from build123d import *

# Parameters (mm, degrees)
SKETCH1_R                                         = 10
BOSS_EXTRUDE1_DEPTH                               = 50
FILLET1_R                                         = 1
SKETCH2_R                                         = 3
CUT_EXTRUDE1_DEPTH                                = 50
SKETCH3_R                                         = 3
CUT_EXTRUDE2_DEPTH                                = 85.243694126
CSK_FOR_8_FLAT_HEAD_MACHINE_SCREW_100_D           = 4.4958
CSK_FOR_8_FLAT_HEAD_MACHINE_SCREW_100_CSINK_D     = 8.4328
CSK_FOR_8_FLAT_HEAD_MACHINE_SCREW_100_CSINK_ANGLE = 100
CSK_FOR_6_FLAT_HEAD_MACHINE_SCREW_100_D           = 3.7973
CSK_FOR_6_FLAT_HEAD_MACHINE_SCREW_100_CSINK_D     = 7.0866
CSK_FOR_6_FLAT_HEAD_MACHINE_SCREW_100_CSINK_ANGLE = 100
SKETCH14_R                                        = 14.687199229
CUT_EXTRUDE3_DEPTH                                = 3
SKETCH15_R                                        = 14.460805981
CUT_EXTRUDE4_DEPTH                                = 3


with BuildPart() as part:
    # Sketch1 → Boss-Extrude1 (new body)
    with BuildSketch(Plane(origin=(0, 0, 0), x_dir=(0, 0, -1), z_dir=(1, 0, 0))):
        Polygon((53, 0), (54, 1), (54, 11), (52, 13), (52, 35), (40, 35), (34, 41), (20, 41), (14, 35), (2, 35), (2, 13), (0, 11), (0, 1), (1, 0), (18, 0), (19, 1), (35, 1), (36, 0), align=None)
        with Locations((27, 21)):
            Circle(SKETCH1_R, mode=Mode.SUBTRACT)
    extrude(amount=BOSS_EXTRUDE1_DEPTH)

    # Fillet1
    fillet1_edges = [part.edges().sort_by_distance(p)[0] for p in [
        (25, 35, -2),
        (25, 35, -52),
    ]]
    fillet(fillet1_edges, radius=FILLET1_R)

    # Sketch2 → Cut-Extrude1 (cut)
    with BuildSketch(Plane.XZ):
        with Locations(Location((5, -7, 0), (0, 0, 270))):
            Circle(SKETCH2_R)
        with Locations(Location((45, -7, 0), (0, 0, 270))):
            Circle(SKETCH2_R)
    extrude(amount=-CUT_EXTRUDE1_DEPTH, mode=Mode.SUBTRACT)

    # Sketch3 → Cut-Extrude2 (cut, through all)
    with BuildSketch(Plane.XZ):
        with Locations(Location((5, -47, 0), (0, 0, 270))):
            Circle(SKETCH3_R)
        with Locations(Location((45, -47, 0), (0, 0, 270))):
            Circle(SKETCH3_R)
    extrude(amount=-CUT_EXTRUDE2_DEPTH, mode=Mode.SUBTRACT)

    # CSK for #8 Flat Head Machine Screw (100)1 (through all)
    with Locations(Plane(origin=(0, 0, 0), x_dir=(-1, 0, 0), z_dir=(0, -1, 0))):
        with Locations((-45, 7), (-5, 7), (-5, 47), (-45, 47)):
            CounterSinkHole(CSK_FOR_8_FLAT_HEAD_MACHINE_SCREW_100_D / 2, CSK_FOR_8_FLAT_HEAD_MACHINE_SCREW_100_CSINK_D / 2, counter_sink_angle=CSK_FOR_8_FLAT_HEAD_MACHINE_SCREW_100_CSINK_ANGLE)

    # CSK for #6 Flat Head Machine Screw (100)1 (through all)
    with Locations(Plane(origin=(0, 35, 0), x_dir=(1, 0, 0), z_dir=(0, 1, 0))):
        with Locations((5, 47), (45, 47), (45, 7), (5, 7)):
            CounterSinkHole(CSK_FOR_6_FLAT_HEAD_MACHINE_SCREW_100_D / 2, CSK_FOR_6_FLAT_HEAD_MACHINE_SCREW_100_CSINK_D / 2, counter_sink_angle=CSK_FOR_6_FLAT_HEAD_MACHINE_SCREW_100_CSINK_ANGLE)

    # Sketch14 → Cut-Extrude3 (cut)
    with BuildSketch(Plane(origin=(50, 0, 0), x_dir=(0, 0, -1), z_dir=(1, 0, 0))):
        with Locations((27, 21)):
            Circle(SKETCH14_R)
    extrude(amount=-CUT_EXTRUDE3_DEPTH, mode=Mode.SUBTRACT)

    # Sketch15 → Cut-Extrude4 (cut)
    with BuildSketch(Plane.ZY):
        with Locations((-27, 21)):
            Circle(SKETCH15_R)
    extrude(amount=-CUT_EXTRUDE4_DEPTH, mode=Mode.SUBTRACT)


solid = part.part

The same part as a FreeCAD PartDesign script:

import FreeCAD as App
import Part
import Sketcher

V = App.Vector


def edges_at(feature, points):
    """Names of the edges that pass closest to the given points."""
    edges = feature.Shape.Edges
    near = lambda p: min(range(len(edges)), key=lambda i: edges[i].distToShape(Part.Vertex(*p))[0])
    return sorted({f"Edge{near(p) + 1}" for p in points})


def add_polygon(sketch, points):
    """Adds a closed chain of lines whose ends are joined by coincident constraints."""
    first, n = sketch.GeometryCount, len(points)
    for a, b in zip(points, points[1:] + points[:1]):
        sketch.addGeometry(Part.LineSegment(App.Vector(*a, 0), App.Vector(*b, 0)), False)
    for i in range(n):
        sketch.addConstraint(Sketcher.Constraint("Coincident", first + i, 2, first + (i + 1) % n, 1))

doc = App.newDocument("Part")
body = doc.addObject("PartDesign::Body", "Body")

sketch1 = doc.addObject("Sketcher::SketchObject", "Sketch")
body.addObject(sketch1)
sketch1.AttachmentSupport = (doc.YZ_Plane, [""])
sketch1.MapMode = "FlatFace"
add_polygon(sketch1, [(0, -53), (1, -54), (11, -54), (13, -52), (35, -52), (35, -40), (41, -34), (41, -20), (35, -14), (35, -2), (13, -2), (11, 0), (1, 0), (0, -1), (0, -18), (1, -19), (1, -35), (0, -36)])
sketch1.addGeometry(Part.Circle(V(21, -27, 0), V(0, 0, 1), 10), False)
sketch1.addConstraint(Sketcher.Constraint("Horizontal", 1))
sketch1.addConstraint(Sketcher.Constraint("Horizontal", 3))
sketch1.addConstraint(Sketcher.Constraint("Vertical", 4))
sketch1.addConstraint(Sketcher.Constraint("Vertical", 6))
sketch1.addConstraint(Sketcher.Constraint("Vertical", 8))
sketch1.addConstraint(Sketcher.Constraint("Horizontal", 9))
sketch1.addConstraint(Sketcher.Constraint("Horizontal", 11))
sketch1.addConstraint(Sketcher.Constraint("Vertical", 13))
sketch1.addConstraint(Sketcher.Constraint("Vertical", 15))
sketch1.addConstraint(Sketcher.Constraint("Vertical", 17))
sketch1.addConstraint(Sketcher.Constraint("PointOnObject", 10, 2, -1))
sketch1.addConstraint(Sketcher.Constraint("PointOnObject", 12, 2, -2))
sketch1.addConstraint(Sketcher.Constraint("PointOnObject", 16, 2, -2))
sketch1.addConstraint(Sketcher.Constraint("Perpendicular", 0, 2))
sketch1.addConstraint(Sketcher.Constraint("Parallel", 2, 5))
sketch1.addConstraint(Sketcher.Constraint("Perpendicular", 5, 7))
sketch1.addConstraint(Sketcher.Constraint("Parallel", 7, 10))
sketch1.addConstraint(Sketcher.Constraint("Perpendicular", 10, 12))
sketch1.addConstraint(Sketcher.Constraint("Perpendicular", 12, 14))
sketch1.addConstraint(Sketcher.Constraint("Perpendicular", 14, 16))
sketch1.addConstraint(Sketcher.Constraint("Vertical", 4, 2, 7, 2))
sketch1.addConstraint(Sketcher.Constraint("Vertical", 2, 2, 9, 2))
sketch1.addConstraint(Sketcher.Constraint("Vertical", 1, 2, 10, 2))
sketch1.addConstraint(Sketcher.Constraint("Vertical", 0, 2, 11, 2))
sketch1.addConstraint(Sketcher.Constraint("Vertical", 11, 2, 14, 2))
sketch1.addConstraint(Sketcher.Constraint("Equal", 4, 8))
sketch1.addConstraint(Sketcher.Constraint("Equal", 13, 17))
sketch1.addConstraint(Sketcher.Constraint("Equal", 5, 7))
sketch1.addConstraint(Sketcher.Constraint("Diameter", 18, 20.0))
sketch1.addConstraint(Sketcher.Constraint("DistanceX", 1, 1, 1, 2, 10.0))
sketch1.addConstraint(Sketcher.Constraint("DistanceX", 3, 1, 3, 2, 22.0))
sketch1.addConstraint(Sketcher.Constraint("DistanceY", 4, 1, 4, 2, 12.0))
sketch1.addConstraint(Sketcher.Constraint("DistanceY", 6, 1, 6, 2, 14.0))
sketch1.addConstraint(Sketcher.Constraint("DistanceY", 13, 2, 13, 1, 17.0))
sketch1.addConstraint(Sketcher.Constraint("DistanceY", 15, 2, 15, 1, 16.0))
sketch1.addConstraint(Sketcher.Constraint("DistanceX", -1, 1, 18, 3, 21.0))
sketch1.addConstraint(Sketcher.Constraint("DistanceY", 18, 3, -1, 1, 27.0))
sketch1.addConstraint(Sketcher.Constraint("DistanceX", -1, 1, 0, 2, 1.0))
sketch1.addConstraint(Sketcher.Constraint("DistanceX", -1, 1, 2, 2, 13.0))
pad1 = doc.addObject("PartDesign::Pad", "Pad")
body.addObject(pad1)
pad1.Profile = sketch1
pad1.Length = 50
doc.recompute()

fillet = doc.addObject("PartDesign::Fillet", "Fillet")
body.addObject(fillet)
fillet.Base = (pad1, edges_at(pad1, [(25, 35, -2), (25, 35, -52)]))
fillet.Radius = 1

sketch2 = doc.addObject("Sketcher::SketchObject", "Sketch001")
body.addObject(sketch2)
sketch2.AttachmentSupport = (doc.XZ_Plane, [""])
sketch2.MapMode = "FlatFace"
sketch2.addGeometry(Part.Circle(V(5, -7, 0), V(0, 0, 1), 3), False)
sketch2.addGeometry(Part.Circle(V(45, -7, 0), V(0, 0, 1), 3), False)
sketch2.addConstraint(Sketcher.Constraint("Equal", 0, 1))
sketch2.addConstraint(Sketcher.Constraint("Horizontal", 0, 3, 1, 3))
sketch2.addConstraint(Sketcher.Constraint("Diameter", 0, 6.0))
sketch2.addConstraint(Sketcher.Constraint("DistanceX", -1, 1, 0, 3, 5.0))
sketch2.addConstraint(Sketcher.Constraint("DistanceY", 0, 3, -1, 1, 7.0))
sketch2.addConstraint(Sketcher.Constraint("DistanceX", -1, 1, 1, 3, 45.0))
pocket1 = doc.addObject("PartDesign::Pocket", "Pocket")
body.addObject(pocket1)
pocket1.Profile = sketch2
pocket1.Length = 50

sketch3 = doc.addObject("Sketcher::SketchObject", "Sketch002")
body.addObject(sketch3)
sketch3.AttachmentSupport = (doc.XZ_Plane, [""])
sketch3.MapMode = "FlatFace"
sketch3.addGeometry(Part.Circle(V(5, -47, 0), V(0, 0, 1), 3), False)
sketch3.addGeometry(Part.Circle(V(45, -47, 0), V(0, 0, 1), 3), False)
sketch3.addConstraint(Sketcher.Constraint("Equal", 0, 1))
sketch3.addConstraint(Sketcher.Constraint("Horizontal", 0, 3, 1, 3))
sketch3.addConstraint(Sketcher.Constraint("Diameter", 0, 6.0))
sketch3.addConstraint(Sketcher.Constraint("DistanceX", -1, 1, 0, 3, 5.0))
sketch3.addConstraint(Sketcher.Constraint("DistanceY", 0, 3, -1, 1, 47.0))
sketch3.addConstraint(Sketcher.Constraint("DistanceX", -1, 1, 1, 3, 45.0))
pocket2 = doc.addObject("PartDesign::Pocket", "Pocket001")
body.addObject(pocket2)
pocket2.Profile = sketch3
pocket2.Type = "ThroughAll"

sketch4 = doc.addObject("Sketcher::SketchObject", "Sketch003")
body.addObject(sketch4)
sketch4.AttachmentSupport = (doc.XZ_Plane, [""])
sketch4.MapMode = "FlatFace"
sketch4.addGeometry(Part.Circle(V(45, -7, 0), V(0, 0, 1), 2.2479), False)
sketch4.addGeometry(Part.Circle(V(5, -7, 0), V(0, 0, 1), 2.2479), False)
sketch4.addGeometry(Part.Circle(V(5, -47, 0), V(0, 0, 1), 2.2479), False)
sketch4.addGeometry(Part.Circle(V(45, -47, 0), V(0, 0, 1), 2.2479), False)
sketch4.addConstraint(Sketcher.Constraint("Equal", 0, 1))
sketch4.addConstraint(Sketcher.Constraint("Equal", 1, 2))
sketch4.addConstraint(Sketcher.Constraint("Equal", 2, 3))
sketch4.addConstraint(Sketcher.Constraint("Horizontal", 0, 3, 1, 3))
sketch4.addConstraint(Sketcher.Constraint("Horizontal", 2, 3, 3, 3))
sketch4.addConstraint(Sketcher.Constraint("Vertical", 1, 3, 2, 3))
sketch4.addConstraint(Sketcher.Constraint("Vertical", 0, 3, 3, 3))
sketch4.addConstraint(Sketcher.Constraint("DistanceX", -1, 1, 0, 3, 45.0))
sketch4.addConstraint(Sketcher.Constraint("DistanceY", 0, 3, -1, 1, 7.0))
sketch4.addConstraint(Sketcher.Constraint("DistanceX", -1, 1, 1, 3, 5.0))
sketch4.addConstraint(Sketcher.Constraint("DistanceY", 2, 3, -1, 1, 47.0))
sketch4.addConstraint(Sketcher.Constraint("Diameter", 0, 4.4958))
doc.recompute()
hole = doc.addObject("PartDesign::Hole", "Hole")
body.addObject(hole)
hole.Profile = sketch4
hole.ThreadType = "None"
hole.Diameter = 4.4958
hole.DepthType = "ThroughAll"
hole.HoleCutType = "Countersink"
hole.HoleCutDiameter = 8.4328
hole.HoleCutCountersinkAngle = 100

sketch5 = doc.addObject("Sketcher::SketchObject", "Sketch004")
body.addObject(sketch5)
sketch5.AttachmentSupport = (doc.XZ_Plane, [""])
sketch5.MapMode = "FlatFace"
sketch5.AttachmentOffset = App.Placement(V(0, 0, -35), App.Rotation())
sketch5.addGeometry(Part.Circle(V(5, -47, 0), V(0, 0, 1), 1.89865), False)
sketch5.addGeometry(Part.Circle(V(45, -47, 0), V(0, 0, 1), 1.89865), False)
sketch5.addGeometry(Part.Circle(V(45, -7, 0), V(0, 0, 1), 1.89865), False)
sketch5.addGeometry(Part.Circle(V(5, -7, 0), V(0, 0, 1), 1.89865), False)
sketch5.addConstraint(Sketcher.Constraint("Equal", 0, 1))
sketch5.addConstraint(Sketcher.Constraint("Equal", 1, 2))
sketch5.addConstraint(Sketcher.Constraint("Equal", 2, 3))
sketch5.addConstraint(Sketcher.Constraint("Horizontal", 0, 3, 1, 3))
sketch5.addConstraint(Sketcher.Constraint("Horizontal", 2, 3, 3, 3))
sketch5.addConstraint(Sketcher.Constraint("Vertical", 1, 3, 2, 3))
sketch5.addConstraint(Sketcher.Constraint("Vertical", 0, 3, 3, 3))
sketch5.addConstraint(Sketcher.Constraint("DistanceX", -1, 1, 0, 3, 5.0))
sketch5.addConstraint(Sketcher.Constraint("DistanceY", 0, 3, -1, 1, 47.0))
sketch5.addConstraint(Sketcher.Constraint("DistanceX", -1, 1, 1, 3, 45.0))
sketch5.addConstraint(Sketcher.Constraint("DistanceY", 2, 3, -1, 1, 7.0))
sketch5.addConstraint(Sketcher.Constraint("Diameter", 0, 3.7973))
doc.recompute()
hole2 = doc.addObject("PartDesign::Hole", "Hole001")
body.addObject(hole2)
hole2.Profile = sketch5
hole2.ThreadType = "None"
hole2.Diameter = 3.7973
hole2.DepthType = "ThroughAll"
hole2.HoleCutType = "Countersink"
hole2.HoleCutDiameter = 7.0866
hole2.HoleCutCountersinkAngle = 100
hole2.Reversed = True

sketch6 = doc.addObject("Sketcher::SketchObject", "Sketch005")
body.addObject(sketch6)
sketch6.AttachmentSupport = (doc.YZ_Plane, [""])
sketch6.MapMode = "FlatFace"
sketch6.AttachmentOffset = App.Placement(V(0, 0, 50), App.Rotation())
sketch6.addGeometry(Part.Circle(V(21, -27, 0), V(0, 0, 1), 14.687199), False)
sketch6.addConstraint(Sketcher.Constraint("DistanceX", -1, 1, 0, 3, 21.0))
sketch6.addConstraint(Sketcher.Constraint("DistanceY", 0, 3, -1, 1, 27.0))
sketch6.addConstraint(Sketcher.Constraint("Diameter", 0, 29.374398))
pocket3 = doc.addObject("PartDesign::Pocket", "Pocket002")
body.addObject(pocket3)
pocket3.Profile = sketch6
pocket3.Length = 3

sketch7 = doc.addObject("Sketcher::SketchObject", "Sketch006")
body.addObject(sketch7)
sketch7.AttachmentSupport = (doc.YZ_Plane, [""])
sketch7.MapMode = "FlatFace"
sketch7.addGeometry(Part.Circle(V(21, -27, 0), V(0, 0, 1), 14.460806), False)
sketch7.addConstraint(Sketcher.Constraint("DistanceX", -1, 1, 0, 3, 21.0))
sketch7.addConstraint(Sketcher.Constraint("DistanceY", 0, 3, -1, 1, 27.0))
sketch7.addConstraint(Sketcher.Constraint("Diameter", 0, 28.921612))
pocket4 = doc.addObject("PartDesign::Pocket", "Pocket003")
body.addObject(pocket4)
pocket4.Profile = sketch7
pocket4.Length = 3
pocket4.Reversed = True

doc.recompute()
